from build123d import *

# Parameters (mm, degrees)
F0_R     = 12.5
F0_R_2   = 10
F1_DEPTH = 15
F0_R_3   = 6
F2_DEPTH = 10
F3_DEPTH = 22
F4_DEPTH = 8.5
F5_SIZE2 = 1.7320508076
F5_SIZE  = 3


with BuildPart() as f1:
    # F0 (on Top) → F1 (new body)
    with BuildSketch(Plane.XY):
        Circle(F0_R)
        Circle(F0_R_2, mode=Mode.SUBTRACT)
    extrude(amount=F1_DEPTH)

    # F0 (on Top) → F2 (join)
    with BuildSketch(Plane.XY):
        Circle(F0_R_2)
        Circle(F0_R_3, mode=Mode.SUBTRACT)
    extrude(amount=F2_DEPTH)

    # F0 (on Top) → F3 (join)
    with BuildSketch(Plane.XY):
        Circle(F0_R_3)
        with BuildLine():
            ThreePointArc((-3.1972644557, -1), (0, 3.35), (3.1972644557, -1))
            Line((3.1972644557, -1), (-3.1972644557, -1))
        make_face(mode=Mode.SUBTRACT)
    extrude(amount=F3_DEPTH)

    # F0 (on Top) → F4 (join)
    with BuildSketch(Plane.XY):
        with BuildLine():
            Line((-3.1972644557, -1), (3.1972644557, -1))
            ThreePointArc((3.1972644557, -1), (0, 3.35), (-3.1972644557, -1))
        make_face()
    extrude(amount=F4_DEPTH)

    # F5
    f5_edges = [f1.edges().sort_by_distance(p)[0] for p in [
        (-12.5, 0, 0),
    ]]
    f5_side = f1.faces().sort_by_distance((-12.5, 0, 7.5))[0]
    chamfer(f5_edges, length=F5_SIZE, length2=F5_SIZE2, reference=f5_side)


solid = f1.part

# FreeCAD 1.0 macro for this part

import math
import FreeCAD as App
import Part
import Sketcher

V = App.Vector
Q = App.Units.Quantity


def edges_at(feature, points):
    """Names of the edges that pass closest to the given points."""
    edges = feature.Shape.Edges
    near = lambda p: min(range(len(edges)), key=lambda i: edges[i].distToShape(Part.Vertex(*p))[0])
    return sorted({f"Edge{near(p) + 1}" for p in points})

doc = App.newDocument("Part")
body = doc.addObject("PartDesign::Body", "Body")

sketch1 = body.newObject("Sketcher::SketchObject", "Sketch")
sketch1.AttachmentSupport = (doc.getObject("XY_Plane"), [""])
sketch1.MapMode = "FlatFace"
sketch1.addGeometry([
    Part.Circle(V(0, 0, 0), V(0, 0, 1), 12),
    Part.Circle(V(0, 0, 0), V(0, 0, 1), 10),
], False)
sketch1.addConstraint([
    Sketcher.Constraint("Coincident", 0, 3, -1, 1),
    Sketcher.Constraint("Coincident", 1, 3, -1, 1),
    Sketcher.Constraint("Diameter", 0, Q("25 mm")),
    Sketcher.Constraint("Diameter", 1, Q("20 mm")),
])
pad1 = body.newObject("PartDesign::Pad", "Pad")
pad1.Profile = sketch1
pad1.Length = 15

sketch2 = body.newObject("Sketcher::SketchObject", "Sketch001")
sketch2.AttachmentSupport = (doc.getObject("XY_Plane"), [""])
sketch2.MapMode = "FlatFace"
sketch2.addGeometry([
    Part.Circle(V(0, 0, 0), V(0, 0, 1), 10),
    Part.Circle(V(0, 0, 0), V(0, 0, 1), 6),
], False)
sketch2.addConstraint([
    Sketcher.Constraint("Coincident", 0, 3, -1, 1),
    Sketcher.Constraint("Coincident", 1, 3, -1, 1),
    Sketcher.Constraint("Diameter", 0, Q("20 mm")),
    Sketcher.Constraint("Diameter", 1, Q("12 mm")),
])
pad2 = body.newObject("PartDesign::Pad", "Pad001")
pad2.Profile = sketch2
pad2.Length = 10

sketch3 = body.newObject("Sketcher::SketchObject", "Sketch002")
sketch3.AttachmentSupport = (doc.getObject("XY_Plane"), [""])
sketch3.MapMode = "FlatFace"
sketch3.addGeometry([
    Part.Circle(V(0, 0, 0), V(0, 0, 1), 6),
    Part.LineSegment(V(3.2, -1, 0), V(-3.2, -1, 0)),
    Part.ArcOfCircle(Part.Circle(V(0, 0, 0), V(0, 0, 1), 3.4), math.radians(-17), math.radians(197)),
], False)
sketch3.addConstraint([
    Sketcher.Constraint("Coincident", 1, 1, 2, 1),
    Sketcher.Constraint("Coincident", 2, 2, 1, 2),
    Sketcher.Constraint("Horizontal", 1),
    Sketcher.Constraint("Coincident", 0, 3, -1, 1),
    Sketcher.Constraint("Coincident", 2, 3, -1, 1),
    Sketcher.Constraint("Diameter", 0, Q("12 mm")),
    Sketcher.Constraint("Radius", 2, Q("3.35 mm")),
    Sketcher.Constraint("DistanceY", 1, 1, -1, 1, Q("1 mm")),
])
pad3 = body.newObject("PartDesign::Pad", "Pad002")
pad3.Profile = sketch3
pad3.Length = 22

sketch4 = body.newObject("Sketcher::SketchObject", "Sketch003")
sketch4.AttachmentSupport = (doc.getObject("XY_Plane"), [""])
sketch4.MapMode = "FlatFace"
sketch4.addGeometry([
    Part.LineSegment(V(-3.2, -1, 0), V(3.2, -1, 0)),
    Part.ArcOfCircle(Part.Circle(V(0, 0, 0), V(0, 0, 1), 3.4), math.radians(-17), math.radians(197)),
], False)
sketch4.addConstraint([
    Sketcher.Constraint("Coincident", 0, 1, 1, 2),
    Sketcher.Constraint("Coincident", 1, 1, 0, 2),
    Sketcher.Constraint("Horizontal", 0),
    Sketcher.Constraint("Coincident", 1, 3, -1, 1),
    Sketcher.Constraint("Radius", 1, Q("3.35 mm")),
    Sketcher.Constraint("DistanceY", 0, 1, -1, 1, Q("1 mm")),
])
pad4 = body.newObject("PartDesign::Pad", "Pad003")
pad4.Profile = sketch4
pad4.Length = 8.5
doc.recompute()

chamfer = body.newObject("PartDesign::Chamfer", "Chamfer")
chamfer.Base = (pad4, edges_at(pad4, [(-12.5, 0, 0)]))
chamfer.ChamferType = "Two distances"
chamfer.Size = 3
chamfer.Size2 = 1.732051

doc.recompute()
